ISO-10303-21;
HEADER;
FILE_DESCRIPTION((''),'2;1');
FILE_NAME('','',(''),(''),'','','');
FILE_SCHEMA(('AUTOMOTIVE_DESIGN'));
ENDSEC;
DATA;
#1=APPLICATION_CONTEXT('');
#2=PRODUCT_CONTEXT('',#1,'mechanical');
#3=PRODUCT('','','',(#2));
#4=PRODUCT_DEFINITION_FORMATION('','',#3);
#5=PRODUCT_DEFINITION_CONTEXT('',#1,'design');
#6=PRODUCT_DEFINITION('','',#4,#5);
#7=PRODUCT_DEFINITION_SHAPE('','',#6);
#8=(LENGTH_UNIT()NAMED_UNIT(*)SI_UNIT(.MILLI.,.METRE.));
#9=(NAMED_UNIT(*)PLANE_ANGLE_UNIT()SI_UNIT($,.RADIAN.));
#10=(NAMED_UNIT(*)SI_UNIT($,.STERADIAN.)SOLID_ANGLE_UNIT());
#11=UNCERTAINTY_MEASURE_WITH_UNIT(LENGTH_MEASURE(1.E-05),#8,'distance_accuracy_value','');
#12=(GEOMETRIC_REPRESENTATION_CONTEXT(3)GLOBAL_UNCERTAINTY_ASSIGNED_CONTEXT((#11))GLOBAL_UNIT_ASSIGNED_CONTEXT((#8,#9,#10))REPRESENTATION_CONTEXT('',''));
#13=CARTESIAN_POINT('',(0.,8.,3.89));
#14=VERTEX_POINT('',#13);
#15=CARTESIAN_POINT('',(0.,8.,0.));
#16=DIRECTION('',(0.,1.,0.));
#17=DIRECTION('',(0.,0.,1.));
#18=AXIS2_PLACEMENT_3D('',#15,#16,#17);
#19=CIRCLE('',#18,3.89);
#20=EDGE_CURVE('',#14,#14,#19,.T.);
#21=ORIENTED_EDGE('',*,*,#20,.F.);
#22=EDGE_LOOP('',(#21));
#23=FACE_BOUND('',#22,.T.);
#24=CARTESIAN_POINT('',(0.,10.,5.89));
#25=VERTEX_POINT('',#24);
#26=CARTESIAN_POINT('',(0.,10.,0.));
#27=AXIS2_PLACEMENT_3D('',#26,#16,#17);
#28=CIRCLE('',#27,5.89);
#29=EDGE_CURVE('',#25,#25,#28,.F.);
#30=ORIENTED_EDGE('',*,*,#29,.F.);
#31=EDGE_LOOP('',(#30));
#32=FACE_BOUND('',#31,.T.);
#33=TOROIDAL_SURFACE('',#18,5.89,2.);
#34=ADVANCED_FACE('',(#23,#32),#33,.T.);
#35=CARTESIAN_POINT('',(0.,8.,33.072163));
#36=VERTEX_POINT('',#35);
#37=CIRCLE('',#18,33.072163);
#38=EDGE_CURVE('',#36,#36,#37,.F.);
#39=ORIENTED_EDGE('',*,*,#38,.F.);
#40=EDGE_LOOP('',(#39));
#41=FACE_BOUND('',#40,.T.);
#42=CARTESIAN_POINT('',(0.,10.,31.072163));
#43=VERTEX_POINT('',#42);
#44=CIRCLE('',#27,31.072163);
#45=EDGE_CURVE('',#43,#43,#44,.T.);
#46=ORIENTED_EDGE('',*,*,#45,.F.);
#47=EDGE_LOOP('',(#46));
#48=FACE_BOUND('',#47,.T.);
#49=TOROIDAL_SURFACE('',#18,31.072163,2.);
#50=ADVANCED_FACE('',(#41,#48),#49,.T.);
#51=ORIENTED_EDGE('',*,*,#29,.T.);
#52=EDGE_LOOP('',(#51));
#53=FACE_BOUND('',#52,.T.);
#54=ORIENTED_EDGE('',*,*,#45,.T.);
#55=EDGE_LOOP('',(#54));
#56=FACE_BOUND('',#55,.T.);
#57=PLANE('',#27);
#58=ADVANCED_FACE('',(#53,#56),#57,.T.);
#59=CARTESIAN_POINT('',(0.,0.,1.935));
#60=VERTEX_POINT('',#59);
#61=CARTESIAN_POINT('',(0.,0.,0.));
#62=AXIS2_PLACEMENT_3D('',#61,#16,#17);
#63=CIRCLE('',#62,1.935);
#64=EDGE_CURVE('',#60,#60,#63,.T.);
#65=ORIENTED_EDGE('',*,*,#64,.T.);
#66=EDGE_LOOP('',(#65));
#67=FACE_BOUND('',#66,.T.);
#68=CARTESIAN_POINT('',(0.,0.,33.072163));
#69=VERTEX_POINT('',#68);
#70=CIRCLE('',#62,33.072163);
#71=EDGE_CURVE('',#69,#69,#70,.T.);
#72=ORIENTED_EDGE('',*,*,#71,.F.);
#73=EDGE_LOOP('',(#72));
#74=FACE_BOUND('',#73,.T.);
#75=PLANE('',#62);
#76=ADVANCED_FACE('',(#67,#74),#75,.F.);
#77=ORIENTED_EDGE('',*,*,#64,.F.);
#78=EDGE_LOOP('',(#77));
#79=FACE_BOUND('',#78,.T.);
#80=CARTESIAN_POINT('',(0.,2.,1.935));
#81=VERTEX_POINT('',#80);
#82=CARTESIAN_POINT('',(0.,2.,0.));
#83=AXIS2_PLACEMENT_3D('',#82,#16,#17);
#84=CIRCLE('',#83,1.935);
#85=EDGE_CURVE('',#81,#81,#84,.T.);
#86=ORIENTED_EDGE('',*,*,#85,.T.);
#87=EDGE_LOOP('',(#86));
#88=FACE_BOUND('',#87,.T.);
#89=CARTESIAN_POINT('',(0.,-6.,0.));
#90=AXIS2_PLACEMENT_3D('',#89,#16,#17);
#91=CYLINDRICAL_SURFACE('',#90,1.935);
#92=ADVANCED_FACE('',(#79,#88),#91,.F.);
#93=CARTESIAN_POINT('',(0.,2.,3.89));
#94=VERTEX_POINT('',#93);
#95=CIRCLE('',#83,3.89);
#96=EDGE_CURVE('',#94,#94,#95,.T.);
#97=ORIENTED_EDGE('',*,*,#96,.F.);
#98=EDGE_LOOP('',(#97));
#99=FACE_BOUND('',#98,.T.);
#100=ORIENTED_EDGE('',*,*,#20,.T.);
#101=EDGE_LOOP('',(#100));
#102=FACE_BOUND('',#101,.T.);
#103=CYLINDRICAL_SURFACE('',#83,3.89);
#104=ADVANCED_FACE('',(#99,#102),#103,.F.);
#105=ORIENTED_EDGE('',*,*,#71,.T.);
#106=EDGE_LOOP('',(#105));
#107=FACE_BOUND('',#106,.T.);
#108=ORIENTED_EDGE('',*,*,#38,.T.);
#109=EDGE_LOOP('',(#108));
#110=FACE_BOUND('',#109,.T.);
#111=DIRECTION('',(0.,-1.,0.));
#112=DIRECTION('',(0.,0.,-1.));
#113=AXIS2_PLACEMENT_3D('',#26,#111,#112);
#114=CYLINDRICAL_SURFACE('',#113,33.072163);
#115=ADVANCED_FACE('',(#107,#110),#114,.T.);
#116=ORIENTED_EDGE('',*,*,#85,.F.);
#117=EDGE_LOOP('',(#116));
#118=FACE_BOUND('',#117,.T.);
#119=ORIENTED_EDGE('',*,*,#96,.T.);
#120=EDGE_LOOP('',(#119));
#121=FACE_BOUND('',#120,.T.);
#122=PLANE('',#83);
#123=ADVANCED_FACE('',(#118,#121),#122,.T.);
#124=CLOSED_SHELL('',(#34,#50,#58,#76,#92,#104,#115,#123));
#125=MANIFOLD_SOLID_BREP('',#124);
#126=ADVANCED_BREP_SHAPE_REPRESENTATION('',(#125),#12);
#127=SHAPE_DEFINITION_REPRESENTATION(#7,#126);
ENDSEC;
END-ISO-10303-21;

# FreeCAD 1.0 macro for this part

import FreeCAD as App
import Part
import Sketcher

V = App.Vector


def edges_at(feature, points):
    """Names of the edges that pass closest to the given points."""
    edges = feature.Shape.Edges
    near = lambda p: min(range(len(edges)), key=lambda i: edges[i].distToShape(Part.Vertex(*p))[0])
    return sorted({f"Edge{near(p) + 1}" for p in points})

doc = App.newDocument("Part")
body = doc.addObject("PartDesign::Body", "Body")

# Sketch on XZ plane
sketch1 = body.newObject("Sketcher::SketchObject", "Sketch")
sketch1.AttachmentSupport = (doc.getObject("XZ_Plane"), [""])
sketch1.MapMode = "FlatFace"
sketch1.addGeometry(Part.Circle(V(0, 0, 0), V(0, 0, 1), 33), False)
sketch1.addConstraint(Sketcher.Constraint("Coincident", 0, 3, -1, 1))
sketch1.addConstraint(Sketcher.Constraint("Diameter", 0, 66.144326))
pad1 = body.newObject("PartDesign::Pad", "Pad")
pad1.Profile = sketch1
pad1.Length = 10
pad1.Reversed = True

# Sketch on XZ plane
sketch2 = body.newObject("Sketcher::SketchObject", "Sketch001")
sketch2.AttachmentSupport = (doc.getObject("XZ_Plane"), [""])
sketch2.MapMode = "FlatFace"
sketch2.AttachmentOffset = App.Placement(V(0, 0, -10), App.Rotation())
sketch2.addGeometry(Part.Circle(V(0, 0, 0), V(0, 0, 1), 3.9), False)
sketch2.addConstraint(Sketcher.Constraint("Coincident", 0, 3, -1, 1))
sketch2.addConstraint(Sketcher.Constraint("Diameter", 0, 7.78))
pocket1 = body.newObject("PartDesign::Pocket", "Pocket")
pocket1.Profile = sketch2
pocket1.Length = 8
pocket1.Reversed = True

# Sketch on XZ plane
sketch3 = body.newObject("Sketcher::SketchObject", "Sketch002")
sketch3.AttachmentSupport = (doc.getObject("XZ_Plane"), [""])
sketch3.MapMode = "FlatFace"
sketch3.AttachmentOffset = App.Placement(V(0, 0, -2), App.Rotation())
sketch3.addGeometry(Part.Circle(V(0, 0, 0), V(0, 0, 1), 1.9), False)
sketch3.addConstraint(Sketcher.Constraint("Coincident", 0, 3, -1, 1))
sketch3.addConstraint(Sketcher.Constraint("Diameter", 0, 3.87))
pocket2 = body.newObject("PartDesign::Pocket", "Pocket001")
pocket2.Profile = sketch3
pocket2.Length = 8
pocket2.Reversed = True
doc.recompute()

fillet = body.newObject("PartDesign::Fillet", "Fillet")
fillet.Base = (pocket2, edges_at(pocket2, [(-33.072, 10, 0)]))
fillet.Radius = 2
doc.recompute()

fillet2 = body.newObject("PartDesign::Fillet", "Fillet001")
fillet2.Base = (fillet, edges_at(fillet, [(-3.89, 10, 0)]))
fillet2.Radius = 2

doc.recompute()
